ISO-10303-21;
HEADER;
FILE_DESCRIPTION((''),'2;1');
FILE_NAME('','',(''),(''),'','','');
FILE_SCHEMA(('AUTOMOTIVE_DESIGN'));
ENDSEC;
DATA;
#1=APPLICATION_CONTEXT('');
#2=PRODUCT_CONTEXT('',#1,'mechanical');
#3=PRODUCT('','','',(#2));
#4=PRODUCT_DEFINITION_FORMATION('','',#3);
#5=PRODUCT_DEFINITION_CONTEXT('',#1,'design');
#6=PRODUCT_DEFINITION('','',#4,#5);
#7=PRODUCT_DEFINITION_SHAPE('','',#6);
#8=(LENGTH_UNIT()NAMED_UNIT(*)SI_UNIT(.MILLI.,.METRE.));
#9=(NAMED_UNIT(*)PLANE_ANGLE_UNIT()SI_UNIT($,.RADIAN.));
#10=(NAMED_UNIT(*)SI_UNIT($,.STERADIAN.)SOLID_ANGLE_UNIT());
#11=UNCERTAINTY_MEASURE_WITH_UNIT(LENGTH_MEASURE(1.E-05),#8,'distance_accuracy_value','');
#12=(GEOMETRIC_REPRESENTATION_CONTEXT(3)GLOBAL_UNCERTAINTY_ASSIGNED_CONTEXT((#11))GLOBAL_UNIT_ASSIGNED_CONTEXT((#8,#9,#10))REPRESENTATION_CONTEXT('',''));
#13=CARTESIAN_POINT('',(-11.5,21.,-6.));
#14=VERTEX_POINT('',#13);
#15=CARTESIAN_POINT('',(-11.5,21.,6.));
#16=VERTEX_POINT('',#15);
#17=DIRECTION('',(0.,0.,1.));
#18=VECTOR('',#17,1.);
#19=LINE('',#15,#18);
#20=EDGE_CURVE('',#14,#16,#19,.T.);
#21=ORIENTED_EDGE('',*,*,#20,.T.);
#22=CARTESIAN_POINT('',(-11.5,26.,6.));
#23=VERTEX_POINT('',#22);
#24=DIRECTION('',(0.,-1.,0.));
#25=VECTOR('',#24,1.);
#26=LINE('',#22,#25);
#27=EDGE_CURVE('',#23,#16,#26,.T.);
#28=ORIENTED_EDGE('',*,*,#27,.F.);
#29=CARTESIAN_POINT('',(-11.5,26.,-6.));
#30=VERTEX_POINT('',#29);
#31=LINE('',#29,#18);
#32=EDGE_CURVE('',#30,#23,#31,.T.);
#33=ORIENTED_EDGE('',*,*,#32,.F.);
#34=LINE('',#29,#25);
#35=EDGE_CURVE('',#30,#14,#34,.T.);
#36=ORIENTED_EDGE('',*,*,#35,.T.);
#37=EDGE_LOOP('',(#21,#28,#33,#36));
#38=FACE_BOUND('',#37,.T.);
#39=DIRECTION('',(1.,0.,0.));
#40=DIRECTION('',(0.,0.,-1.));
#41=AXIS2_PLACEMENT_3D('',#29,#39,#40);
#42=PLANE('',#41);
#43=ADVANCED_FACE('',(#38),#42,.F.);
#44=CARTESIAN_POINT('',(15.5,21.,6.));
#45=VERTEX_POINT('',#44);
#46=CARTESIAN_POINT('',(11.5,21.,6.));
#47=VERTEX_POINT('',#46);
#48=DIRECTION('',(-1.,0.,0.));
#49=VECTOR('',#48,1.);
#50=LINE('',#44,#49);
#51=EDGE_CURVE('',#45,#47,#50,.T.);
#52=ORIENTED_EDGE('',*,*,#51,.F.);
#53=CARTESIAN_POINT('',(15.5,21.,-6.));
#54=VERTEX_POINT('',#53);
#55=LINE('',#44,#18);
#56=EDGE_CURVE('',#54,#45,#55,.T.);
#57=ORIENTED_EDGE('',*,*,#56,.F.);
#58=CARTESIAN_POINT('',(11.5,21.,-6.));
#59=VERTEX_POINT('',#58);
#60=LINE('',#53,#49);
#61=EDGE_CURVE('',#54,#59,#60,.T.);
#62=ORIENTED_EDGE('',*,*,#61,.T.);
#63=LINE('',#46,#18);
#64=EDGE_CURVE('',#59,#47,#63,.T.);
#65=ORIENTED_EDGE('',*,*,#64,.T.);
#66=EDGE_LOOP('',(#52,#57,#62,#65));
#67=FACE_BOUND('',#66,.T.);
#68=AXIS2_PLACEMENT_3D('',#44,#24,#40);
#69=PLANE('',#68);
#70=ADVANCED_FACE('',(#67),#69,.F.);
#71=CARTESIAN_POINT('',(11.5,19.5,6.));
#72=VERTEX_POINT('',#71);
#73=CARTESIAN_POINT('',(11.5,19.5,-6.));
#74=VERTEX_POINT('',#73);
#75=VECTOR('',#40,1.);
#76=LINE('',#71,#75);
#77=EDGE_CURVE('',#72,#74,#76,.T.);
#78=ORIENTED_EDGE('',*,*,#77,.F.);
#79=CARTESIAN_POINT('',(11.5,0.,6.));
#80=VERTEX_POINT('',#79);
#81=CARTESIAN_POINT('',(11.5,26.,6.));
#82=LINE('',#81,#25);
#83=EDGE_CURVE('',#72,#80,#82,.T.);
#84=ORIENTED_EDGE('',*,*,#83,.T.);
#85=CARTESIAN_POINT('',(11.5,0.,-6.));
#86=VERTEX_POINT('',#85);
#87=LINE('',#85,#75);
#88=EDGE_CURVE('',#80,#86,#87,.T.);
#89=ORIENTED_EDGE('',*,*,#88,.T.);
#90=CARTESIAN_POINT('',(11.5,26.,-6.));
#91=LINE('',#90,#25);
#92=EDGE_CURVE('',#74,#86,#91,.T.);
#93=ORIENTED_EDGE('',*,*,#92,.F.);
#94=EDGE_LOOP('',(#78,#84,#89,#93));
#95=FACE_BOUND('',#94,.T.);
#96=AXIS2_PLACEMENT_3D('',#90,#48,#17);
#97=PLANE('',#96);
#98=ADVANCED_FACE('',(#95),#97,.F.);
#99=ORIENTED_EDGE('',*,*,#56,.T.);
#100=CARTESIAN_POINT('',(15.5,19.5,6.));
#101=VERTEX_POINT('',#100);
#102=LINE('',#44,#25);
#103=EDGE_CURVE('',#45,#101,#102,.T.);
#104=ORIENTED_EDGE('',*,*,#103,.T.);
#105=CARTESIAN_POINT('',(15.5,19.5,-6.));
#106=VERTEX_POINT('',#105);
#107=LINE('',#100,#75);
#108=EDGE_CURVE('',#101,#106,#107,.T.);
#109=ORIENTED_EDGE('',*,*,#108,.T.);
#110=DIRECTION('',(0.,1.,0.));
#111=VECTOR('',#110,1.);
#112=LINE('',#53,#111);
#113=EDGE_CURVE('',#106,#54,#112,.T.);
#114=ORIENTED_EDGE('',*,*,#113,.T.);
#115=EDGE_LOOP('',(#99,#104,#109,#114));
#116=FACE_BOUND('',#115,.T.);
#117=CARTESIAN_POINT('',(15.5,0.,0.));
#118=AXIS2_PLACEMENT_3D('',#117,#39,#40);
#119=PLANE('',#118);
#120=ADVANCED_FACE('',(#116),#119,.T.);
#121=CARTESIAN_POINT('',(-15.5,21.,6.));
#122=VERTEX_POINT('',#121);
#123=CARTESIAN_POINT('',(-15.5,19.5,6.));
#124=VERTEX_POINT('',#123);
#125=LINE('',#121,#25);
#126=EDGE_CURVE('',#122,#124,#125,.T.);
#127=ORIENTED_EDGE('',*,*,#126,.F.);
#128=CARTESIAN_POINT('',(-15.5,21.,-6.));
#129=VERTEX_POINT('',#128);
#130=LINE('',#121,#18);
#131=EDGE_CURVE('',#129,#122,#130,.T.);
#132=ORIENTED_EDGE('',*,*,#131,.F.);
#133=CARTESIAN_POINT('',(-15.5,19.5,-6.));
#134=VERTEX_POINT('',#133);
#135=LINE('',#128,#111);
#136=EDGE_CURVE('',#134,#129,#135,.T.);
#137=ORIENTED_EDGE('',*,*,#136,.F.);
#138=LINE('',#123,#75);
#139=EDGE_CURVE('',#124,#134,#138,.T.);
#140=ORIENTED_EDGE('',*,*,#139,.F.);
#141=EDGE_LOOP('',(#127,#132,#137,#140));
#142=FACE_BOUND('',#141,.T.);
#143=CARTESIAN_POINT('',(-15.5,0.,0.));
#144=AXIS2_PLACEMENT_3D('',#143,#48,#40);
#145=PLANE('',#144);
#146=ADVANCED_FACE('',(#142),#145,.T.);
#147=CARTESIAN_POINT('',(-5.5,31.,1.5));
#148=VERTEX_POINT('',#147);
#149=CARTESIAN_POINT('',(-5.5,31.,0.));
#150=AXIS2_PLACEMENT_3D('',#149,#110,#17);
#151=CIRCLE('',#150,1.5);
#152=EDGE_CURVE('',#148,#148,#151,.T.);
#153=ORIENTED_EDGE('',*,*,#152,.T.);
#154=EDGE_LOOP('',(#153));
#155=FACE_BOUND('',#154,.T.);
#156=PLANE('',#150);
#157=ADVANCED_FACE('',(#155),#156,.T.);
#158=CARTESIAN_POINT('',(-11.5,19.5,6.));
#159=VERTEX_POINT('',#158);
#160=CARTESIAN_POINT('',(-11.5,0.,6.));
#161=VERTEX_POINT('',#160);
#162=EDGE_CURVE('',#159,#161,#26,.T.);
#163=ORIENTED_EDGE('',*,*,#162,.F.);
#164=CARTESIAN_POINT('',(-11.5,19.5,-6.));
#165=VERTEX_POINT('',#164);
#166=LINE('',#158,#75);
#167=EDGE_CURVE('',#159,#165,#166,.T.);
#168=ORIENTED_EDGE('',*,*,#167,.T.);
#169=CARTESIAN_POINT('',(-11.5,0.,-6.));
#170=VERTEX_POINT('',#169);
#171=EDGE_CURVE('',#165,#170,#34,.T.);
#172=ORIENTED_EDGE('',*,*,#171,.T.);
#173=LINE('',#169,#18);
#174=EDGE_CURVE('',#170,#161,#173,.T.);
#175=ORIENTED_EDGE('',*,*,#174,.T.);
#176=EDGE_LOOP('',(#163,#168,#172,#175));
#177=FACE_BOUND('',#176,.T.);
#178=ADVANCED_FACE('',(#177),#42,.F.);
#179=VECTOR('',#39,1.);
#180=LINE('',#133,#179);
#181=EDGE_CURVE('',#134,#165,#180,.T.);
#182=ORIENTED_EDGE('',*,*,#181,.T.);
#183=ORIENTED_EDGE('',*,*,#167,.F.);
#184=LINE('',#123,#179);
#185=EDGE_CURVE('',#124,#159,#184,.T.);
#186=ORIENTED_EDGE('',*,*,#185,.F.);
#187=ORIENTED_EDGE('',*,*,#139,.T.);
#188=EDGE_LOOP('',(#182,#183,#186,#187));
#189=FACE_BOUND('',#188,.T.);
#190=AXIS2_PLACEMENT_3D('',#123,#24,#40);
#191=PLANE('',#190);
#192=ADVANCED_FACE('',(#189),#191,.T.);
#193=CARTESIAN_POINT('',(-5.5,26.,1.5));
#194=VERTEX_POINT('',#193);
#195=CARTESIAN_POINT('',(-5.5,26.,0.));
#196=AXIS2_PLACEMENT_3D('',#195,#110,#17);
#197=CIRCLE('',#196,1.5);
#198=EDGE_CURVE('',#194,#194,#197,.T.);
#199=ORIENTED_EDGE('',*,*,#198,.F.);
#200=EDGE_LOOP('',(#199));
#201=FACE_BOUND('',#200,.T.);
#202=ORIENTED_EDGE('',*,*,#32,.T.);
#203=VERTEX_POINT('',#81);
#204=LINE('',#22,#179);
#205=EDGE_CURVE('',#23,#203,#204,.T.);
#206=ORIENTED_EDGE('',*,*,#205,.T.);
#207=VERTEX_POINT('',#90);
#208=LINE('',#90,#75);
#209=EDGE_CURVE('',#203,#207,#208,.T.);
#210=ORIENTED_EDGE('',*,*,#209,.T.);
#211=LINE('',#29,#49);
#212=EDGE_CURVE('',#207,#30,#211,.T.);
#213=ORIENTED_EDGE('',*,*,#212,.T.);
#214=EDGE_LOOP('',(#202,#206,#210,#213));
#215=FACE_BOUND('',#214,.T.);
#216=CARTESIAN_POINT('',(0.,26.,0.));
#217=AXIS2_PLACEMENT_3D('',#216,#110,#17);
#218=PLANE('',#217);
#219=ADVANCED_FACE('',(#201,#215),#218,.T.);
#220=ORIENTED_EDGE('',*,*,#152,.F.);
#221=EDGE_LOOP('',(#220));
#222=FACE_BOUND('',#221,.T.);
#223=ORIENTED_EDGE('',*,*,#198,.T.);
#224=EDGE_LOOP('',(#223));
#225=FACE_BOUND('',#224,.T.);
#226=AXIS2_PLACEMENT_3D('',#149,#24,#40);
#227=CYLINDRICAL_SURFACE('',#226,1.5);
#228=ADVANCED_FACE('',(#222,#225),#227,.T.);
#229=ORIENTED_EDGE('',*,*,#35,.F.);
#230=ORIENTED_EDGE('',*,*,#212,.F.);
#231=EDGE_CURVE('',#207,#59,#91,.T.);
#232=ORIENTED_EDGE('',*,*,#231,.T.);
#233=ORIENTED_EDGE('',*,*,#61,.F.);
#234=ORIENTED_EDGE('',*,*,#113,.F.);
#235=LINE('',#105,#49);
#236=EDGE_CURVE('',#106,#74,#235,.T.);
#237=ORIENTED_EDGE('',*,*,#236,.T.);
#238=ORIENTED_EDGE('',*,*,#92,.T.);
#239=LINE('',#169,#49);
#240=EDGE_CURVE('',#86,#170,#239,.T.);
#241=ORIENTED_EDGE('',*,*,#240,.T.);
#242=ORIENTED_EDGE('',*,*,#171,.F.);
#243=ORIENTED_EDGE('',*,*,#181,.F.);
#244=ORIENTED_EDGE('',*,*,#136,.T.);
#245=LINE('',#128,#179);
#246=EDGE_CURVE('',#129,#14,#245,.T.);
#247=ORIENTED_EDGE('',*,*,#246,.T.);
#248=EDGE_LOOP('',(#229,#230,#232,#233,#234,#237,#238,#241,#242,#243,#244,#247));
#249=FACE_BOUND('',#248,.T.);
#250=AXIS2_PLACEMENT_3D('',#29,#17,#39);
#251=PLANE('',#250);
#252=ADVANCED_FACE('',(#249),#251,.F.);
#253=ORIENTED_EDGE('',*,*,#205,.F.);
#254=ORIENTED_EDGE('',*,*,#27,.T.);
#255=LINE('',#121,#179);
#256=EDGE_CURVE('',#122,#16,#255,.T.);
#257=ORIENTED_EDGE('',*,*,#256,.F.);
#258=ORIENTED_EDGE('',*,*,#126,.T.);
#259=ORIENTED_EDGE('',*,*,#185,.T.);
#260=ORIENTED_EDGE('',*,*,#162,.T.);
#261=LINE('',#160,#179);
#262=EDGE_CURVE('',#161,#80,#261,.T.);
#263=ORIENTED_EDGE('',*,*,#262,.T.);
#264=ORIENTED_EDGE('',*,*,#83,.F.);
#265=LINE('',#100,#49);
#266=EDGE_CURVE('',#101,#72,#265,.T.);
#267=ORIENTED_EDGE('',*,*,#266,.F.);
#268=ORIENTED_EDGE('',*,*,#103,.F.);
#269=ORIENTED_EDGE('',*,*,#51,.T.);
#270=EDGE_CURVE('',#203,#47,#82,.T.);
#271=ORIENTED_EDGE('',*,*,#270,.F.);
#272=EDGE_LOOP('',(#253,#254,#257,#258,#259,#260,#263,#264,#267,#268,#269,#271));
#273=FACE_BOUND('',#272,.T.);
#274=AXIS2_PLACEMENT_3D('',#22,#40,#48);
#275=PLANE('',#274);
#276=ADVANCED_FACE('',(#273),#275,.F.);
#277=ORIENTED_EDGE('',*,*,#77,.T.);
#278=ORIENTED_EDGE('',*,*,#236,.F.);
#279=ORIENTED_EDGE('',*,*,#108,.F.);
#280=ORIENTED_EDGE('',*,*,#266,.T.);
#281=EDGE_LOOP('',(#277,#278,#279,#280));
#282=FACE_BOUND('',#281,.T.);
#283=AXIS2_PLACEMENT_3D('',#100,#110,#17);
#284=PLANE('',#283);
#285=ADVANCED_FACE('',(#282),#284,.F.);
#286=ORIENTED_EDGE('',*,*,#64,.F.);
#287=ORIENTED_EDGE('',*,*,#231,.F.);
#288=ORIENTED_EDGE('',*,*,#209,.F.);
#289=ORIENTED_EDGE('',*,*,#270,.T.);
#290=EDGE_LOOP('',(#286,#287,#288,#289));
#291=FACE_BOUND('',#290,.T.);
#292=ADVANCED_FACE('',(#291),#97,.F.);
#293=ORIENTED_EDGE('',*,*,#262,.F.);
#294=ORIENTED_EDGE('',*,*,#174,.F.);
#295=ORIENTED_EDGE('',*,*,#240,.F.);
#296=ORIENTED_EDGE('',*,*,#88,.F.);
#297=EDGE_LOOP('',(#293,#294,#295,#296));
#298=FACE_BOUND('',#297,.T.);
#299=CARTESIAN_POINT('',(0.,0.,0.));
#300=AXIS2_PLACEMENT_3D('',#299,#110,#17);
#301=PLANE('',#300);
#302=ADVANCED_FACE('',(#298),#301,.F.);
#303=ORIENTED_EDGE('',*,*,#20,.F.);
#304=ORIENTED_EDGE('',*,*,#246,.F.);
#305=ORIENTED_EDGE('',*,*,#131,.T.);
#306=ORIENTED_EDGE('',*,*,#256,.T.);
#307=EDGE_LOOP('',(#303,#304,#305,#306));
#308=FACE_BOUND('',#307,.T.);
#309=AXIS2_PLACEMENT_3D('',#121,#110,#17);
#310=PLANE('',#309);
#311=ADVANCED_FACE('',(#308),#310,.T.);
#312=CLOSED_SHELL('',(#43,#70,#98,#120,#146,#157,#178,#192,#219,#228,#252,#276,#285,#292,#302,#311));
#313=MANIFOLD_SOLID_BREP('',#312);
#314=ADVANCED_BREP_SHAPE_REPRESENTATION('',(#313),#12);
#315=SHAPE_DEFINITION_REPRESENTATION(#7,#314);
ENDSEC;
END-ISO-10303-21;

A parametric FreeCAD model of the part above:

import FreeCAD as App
import Part
import Sketcher
from FreeCAD import Vector
Q = App.Units.Quantity

doc = App.newDocument("Part")
params = doc.addObject("Spreadsheet::Sheet", "Params")
for row, (alias, value) in enumerate([
    ("sketch1_width", "23 mm"),
    ("sketch1_height", "12 mm"),
    ("pad1_length", "26 mm"),
    ("sketch2_height", "12 mm"),
    ("sketch2_width", "1.5 mm"),
    ("pad2_length", "4 mm"),
    ("sketch3_diameter", "3 mm"),
    ("pad3_length", "5 mm"),
], start=1):
    params.set(f"A{row}", alias)
    params.set(f"B{row}", "=" + value)
    params.setAlias(f"B{row}", alias)

body = doc.addObject("PartDesign::Body", "Body")

# Sketch on XZ plane
sketch1 = body.newObject("Sketcher::SketchObject", "Sketch")
sketch1.AttachmentSupport = (doc.getObject("XZ_Plane"), [""])
sketch1.MapMode = "FlatFace"
sketch1.addGeometry([
    Part.LineSegment(Vector(-12, -6, 0), Vector(-12, 6, 0)),
    Part.LineSegment(Vector(-12, 6, 0), Vector(12, 6, 0)),
    Part.LineSegment(Vector(12, 6, 0), Vector(12, -6, 0)),
    Part.LineSegment(Vector(12, -6, 0), Vector(-12, -6, 0)),
], False)
sketch1.addConstraint([
    Sketcher.Constraint("Coincident", 0, 2, 1, 1),
    Sketcher.Constraint("Coincident", 1, 2, 2, 1),
    Sketcher.Constraint("Coincident", 2, 2, 3, 1),
    Sketcher.Constraint("Coincident", 3, 2, 0, 1),
    Sketcher.Constraint("Vertical", 0),
    Sketcher.Constraint("Horizontal", 1),
    Sketcher.Constraint("Vertical", 2),
    Sketcher.Constraint("Horizontal", 3),
    Sketcher.Constraint("Symmetric", 0, 2, 2, 2, -1, 1),
    Sketcher.Constraint("DistanceX", 1, 1, 1, 2, Q("23 mm")),
    Sketcher.Constraint("DistanceY", 0, 1, 0, 2, Q("12 mm")),
])
sketch1.setExpression("Constraints[9]", "Params.sketch1_width")
sketch1.setExpression("Constraints[10]", "Params.sketch1_height")
pad1 = body.newObject("PartDesign::Pad", "Pad")
pad1.Profile = sketch1
pad1.setExpression("Length", "Params.pad1_length")
pad1.Reversed = True

# Sketch on YZ plane
sketch2 = body.newObject("Sketcher::SketchObject", "Sketch001")
sketch2.AttachmentSupport = (doc.getObject("YZ_Plane"), [""])
sketch2.MapMode = "FlatFace"
sketch2.AttachmentOffset = App.Placement(Vector(0, 0, 11.5), App.Rotation())
sketch2.addGeometry([
    Part.LineSegment(Vector(21, 6, 0), Vector(19.5, 6, 0)),
    Part.LineSegment(Vector(19.5, 6, 0), Vector(19.5, -6, 0)),
    Part.LineSegment(Vector(19.5, -6, 0), Vector(21, -6, 0)),
    Part.LineSegment(Vector(21, -6, 0), Vector(21, 6, 0)),
], False)
sketch2.addConstraint([
    Sketcher.Constraint("Coincident", 0, 2, 1, 1),
    Sketcher.Constraint("Coincident", 1, 2, 2, 1),
    Sketcher.Constraint("Coincident", 2, 2, 3, 1),
    Sketcher.Constraint("Coincident", 3, 2, 0, 1),
    Sketcher.Constraint("Horizontal", 0),
    Sketcher.Constraint("Vertical", 1),
    Sketcher.Constraint("Horizontal", 2),
    Sketcher.Constraint("Vertical", 3),
    Sketcher.Constraint("DistanceY", 1, 2, 1, 1, Q("12 mm")),
    Sketcher.Constraint("DistanceX", 0, 2, 0, 1, Q("1.5 mm")),
    Sketcher.Constraint("DistanceY", -1, 1, 0, 2, Q("6 mm")),
    Sketcher.Constraint("DistanceX", -1, 1, 2, 2, Q("21 mm")),
])
sketch2.setExpression("Constraints[8]", "Params.sketch2_height")
sketch2.setExpression("Constraints[9]", "Params.sketch2_width")
pad2 = body.newObject("PartDesign::Pad", "Pad001")
pad2.Profile = sketch2
pad2.setExpression("Length", "Params.pad2_length")
doc.recompute()

mirrored = body.newObject("PartDesign::Mirrored", "Mirrored")
mirrored.Originals = [pad2]
mirrored.MirrorPlane = (doc.getObject("YZ_Plane"), [""])
body.Tip = mirrored

# Sketch on XZ plane
sketch3 = body.newObject("Sketcher::SketchObject", "Sketch002")
sketch3.AttachmentSupport = (doc.getObject("XZ_Plane"), [""])
sketch3.MapMode = "FlatFace"
sketch3.AttachmentOffset = App.Placement(Vector(0, 0, -26), App.Rotation())
sketch3.addGeometry(Part.Circle(Vector(-5.5, 0, 0), Vector(0, 0, 1), 1.5), False)
sketch3.addConstraint([
    Sketcher.Constraint("PointOnObject", 0, 3, -1),
    Sketcher.Constraint("Diameter", 0, Q("3 mm")),
    Sketcher.Constraint("DistanceX", 0, 3, -1, 1, Q("5.5 mm")),
])
sketch3.setExpression("Constraints[1]", "Params.sketch3_diameter")
pad3 = body.newObject("PartDesign::Pad", "Pad002")
pad3.Profile = sketch3
pad3.setExpression("Length", "Params.pad3_length")
pad3.Reversed = True

doc.recompute()
